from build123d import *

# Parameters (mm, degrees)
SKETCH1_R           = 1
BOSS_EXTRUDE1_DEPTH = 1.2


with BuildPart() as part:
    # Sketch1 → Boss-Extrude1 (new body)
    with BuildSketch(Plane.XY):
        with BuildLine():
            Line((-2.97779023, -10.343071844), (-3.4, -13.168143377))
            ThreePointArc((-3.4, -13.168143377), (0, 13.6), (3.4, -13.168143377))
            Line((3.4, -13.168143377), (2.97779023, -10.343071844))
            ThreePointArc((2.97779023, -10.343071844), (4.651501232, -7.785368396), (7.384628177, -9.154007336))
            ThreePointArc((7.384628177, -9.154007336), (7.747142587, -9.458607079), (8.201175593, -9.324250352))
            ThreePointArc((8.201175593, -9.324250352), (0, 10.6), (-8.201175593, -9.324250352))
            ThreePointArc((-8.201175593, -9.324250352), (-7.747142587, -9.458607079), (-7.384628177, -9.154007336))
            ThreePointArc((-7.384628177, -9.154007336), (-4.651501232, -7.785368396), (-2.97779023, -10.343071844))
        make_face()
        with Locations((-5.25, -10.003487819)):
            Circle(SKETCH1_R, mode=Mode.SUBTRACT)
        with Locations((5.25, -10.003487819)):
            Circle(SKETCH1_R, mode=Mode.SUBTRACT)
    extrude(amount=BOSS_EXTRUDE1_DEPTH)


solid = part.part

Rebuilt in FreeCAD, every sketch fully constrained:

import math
import FreeCAD as App
import Part
import Sketcher
Q = App.Units.Quantity

doc = App.newDocument("Part")
params = doc.addObject("Spreadsheet::Sheet", "Params")
for row, (alias, value) in enumerate([
    ("sketch1_diameter", "2 mm"),
    ("sketch1_radius", "0.5 mm"),
    ("sketch1_radius2", "13.6 mm"),
    ("sketch1_radius3", "11.65 mm"),
    ("pad1_length", "1.2 mm"),
], start=1):
    params.set(f"A{row}", alias)
    params.set(f"B{row}", "=" + value)
    params.setAlias(f"B{row}", alias)

body = doc.addObject("PartDesign::Body", "Body")

sketch1 = body.newObject("Sketcher::SketchObject", "Sketch")
sketch1.AttachmentSupport = (doc.getObject("XY_Plane"), [""])
sketch1.MapMode = "FlatFace"
sketch1.addGeometry([
    Part.LineSegment(App.Vector(-3.4, -13.168143, 0), App.Vector(-2.97779, -10.343072, 0)),
    Part.ArcOfCircle(Part.Circle(App.Vector(-5.25, -10.003488, 0), App.Vector(0, 0, 1), 2.297445), math.radians(-8.5), math.radians(158.299797)),
    Part.ArcOfCircle(Part.Circle(App.Vector(-7.849194, -8.969132, 0), App.Vector(0, 0, 1), 0.5), math.radians(-134.745873), math.radians(-21.700203)),
    Part.ArcOfCircle(Part.Circle(App.Vector(0, -1.05, 0), App.Vector(0, 0, 1), 11.65), math.radians(-45.254127), math.radians(225.254127)),
    Part.ArcOfCircle(Part.Circle(App.Vector(7.849194, -8.969132, 0), App.Vector(0, 0, 1), 0.5), math.radians(-158.299797), math.radians(-45.254127)),
    Part.ArcOfCircle(Part.Circle(App.Vector(5.25, -10.003488, 0), App.Vector(0, 0, 1), 2.297445), math.radians(21.700203), math.radians(188.5)),
    Part.LineSegment(App.Vector(2.97779, -10.343072, 0), App.Vector(3.4, -13.168143, 0)),
    Part.ArcOfCircle(Part.Circle(App.Vector(0, 0, 0), App.Vector(0, 0, 1), 13.6), math.radians(-75.522488), math.radians(255.522488)),
    Part.Circle(App.Vector(5.25, -10.003488, 0), App.Vector(0, 0, 1), 1),
    Part.Circle(App.Vector(-5.25, -10.003488, 0), App.Vector(0, 0, 1), 1),
], False)
sketch1.addConstraint([
    Sketcher.Constraint("Tangent", 0, 2, 1, 1),
    Sketcher.Constraint("Tangent", 1, 2, 2, 2),
    Sketcher.Constraint("Tangent", 2, 1, 3, 2),
    Sketcher.Constraint("Tangent", 3, 1, 4, 2),
    Sketcher.Constraint("Tangent", 4, 1, 5, 1),
    Sketcher.Constraint("Tangent", 5, 2, 6, 1),
    Sketcher.Constraint("Coincident", 6, 2, 7, 1),
    Sketcher.Constraint("Coincident", 7, 2, 0, 1),
    Sketcher.Constraint("Coincident", 7, 3, -1, 1),
    Sketcher.Constraint("Coincident", 8, 3, 5, 3),
    Sketcher.Constraint("Coincident", 9, 3, 1, 3),
    Sketcher.Constraint("Equal", 2, 4),
    Sketcher.Constraint("Equal", 1, 5),
    Sketcher.Constraint("Equal", 8, 9),
    Sketcher.Constraint("Symmetric", 2, 3, 4, 3, -2),
    Sketcher.Constraint("Symmetric", 0, 2, 5, 2, -2),
    Sketcher.Constraint("Diameter", 8, Q("2 mm")),
    Sketcher.Constraint("Radius", 2, Q("0.5 mm")),
    Sketcher.Constraint("Radius", 7, Q("13.6 mm")),
    Sketcher.Constraint("Radius", 3, Q("11.65 mm")),
    Sketcher.Constraint("Angle", 0, Q("81.5 deg")),
    Sketcher.Constraint("DistanceX", -1, 1, 6, 2, Q("3.4 mm")),
    Sketcher.Constraint("DistanceX", 1, 3, 5, 3, Q("10.5 mm")),
    Sketcher.Constraint("DistanceY", 3, 3, -1, 1, Q("1.05 mm")),
    Sketcher.Constraint("Radius", 1, Q("2.297445 mm")),
])
sketch1.setExpression("Constraints[16]", "Params.sketch1_diameter")
sketch1.setExpression("Constraints[17]", "Params.sketch1_radius")
sketch1.setExpression("Constraints[18]", "Params.sketch1_radius2")
sketch1.setExpression("Constraints[19]", "Params.sketch1_radius3")
pad1 = body.newObject("PartDesign::Pad", "Pad")
pad1.Profile = sketch1
pad1.setExpression("Length", "Params.pad1_length")

doc.recompute()
